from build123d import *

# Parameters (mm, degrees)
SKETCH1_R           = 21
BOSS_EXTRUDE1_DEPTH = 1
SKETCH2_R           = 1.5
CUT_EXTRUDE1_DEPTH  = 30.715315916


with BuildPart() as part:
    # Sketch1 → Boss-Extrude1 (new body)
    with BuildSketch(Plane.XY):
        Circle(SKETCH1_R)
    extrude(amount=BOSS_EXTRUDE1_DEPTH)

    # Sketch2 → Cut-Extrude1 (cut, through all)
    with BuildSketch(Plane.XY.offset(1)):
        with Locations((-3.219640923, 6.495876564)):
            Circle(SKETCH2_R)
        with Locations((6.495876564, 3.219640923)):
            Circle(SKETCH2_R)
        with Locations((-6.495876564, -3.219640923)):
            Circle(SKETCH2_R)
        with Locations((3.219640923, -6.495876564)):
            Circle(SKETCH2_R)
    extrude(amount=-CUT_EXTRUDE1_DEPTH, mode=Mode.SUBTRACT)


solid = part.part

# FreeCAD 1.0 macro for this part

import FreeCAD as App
import Part
import Sketcher
from FreeCAD import Vector
Q = App.Units.Quantity

doc = App.newDocument("Part")
body = doc.addObject("PartDesign::Body", "Body")

sketch1 = body.newObject("Sketcher::SketchObject", "Sketch")
sketch1.AttachmentSupport = (doc.getObject("XY_Plane"), [""])
sketch1.MapMode = "FlatFace"
sketch1.addGeometry(Part.Circle(Vector(0, 0, 0), Vector(0, 0, 1), 21), False)
sketch1.addConstraint([
    Sketcher.Constraint("Coincident", 0, 3, -1, 1),
    Sketcher.Constraint("Diameter", 0, Q("42 mm")),
])
pad1 = body.newObject("PartDesign::Pad", "Pad")
pad1.Profile = sketch1
pad1.Length = 1

sketch2 = body.newObject("Sketcher::SketchObject", "Sketch001")
sketch2.AttachmentSupport = (doc.getObject("XY_Plane"), [""])
sketch2.MapMode = "FlatFace"
sketch2.AttachmentOffset = App.Placement(Vector(0, 0, 1), App.Rotation())
sketch2.addGeometry([
    Part.Circle(Vector(-3.2, 6.5, 0), Vector(0, 0, 1), 1.5),
    Part.Circle(Vector(6.5, 3.2, 0), Vector(0, 0, 1), 1.5),
    Part.Circle(Vector(-6.5, -3.2, 0), Vector(0, 0, 1), 1.5),
    Part.Circle(Vector(3.2, -6.5, 0), Vector(0, 0, 1), 1.5),
], False)
sketch2.addConstraint([
    Sketcher.Constraint("Equal", 0, 1),
    Sketcher.Constraint("Equal", 1, 2),
    Sketcher.Constraint("Equal", 2, 3),
    Sketcher.Constraint("Symmetric", 1, 3, 2, 3, -1, 1),
    Sketcher.Constraint("Symmetric", 0, 3, 3, 3, -1, 1),
    Sketcher.Constraint("Diameter", 0, Q("3 mm")),
    Sketcher.Constraint("DistanceX", 0, 3, -1, 1, Q("3.219641 mm")),
    Sketcher.Constraint("DistanceY", -1, 1, 1, 3, Q("3.219641 mm")),
    Sketcher.Constraint("DistanceY", -1, 1, 0, 3, Q("6.495877 mm")),
    Sketcher.Constraint("DistanceX", -1, 1, 1, 3, Q("6.495877 mm")),
])
pocket1 = body.newObject("PartDesign::Pocket", "Pocket")
pocket1.Profile = sketch2
pocket1.Type = "ThroughAll"

doc.recompute()
